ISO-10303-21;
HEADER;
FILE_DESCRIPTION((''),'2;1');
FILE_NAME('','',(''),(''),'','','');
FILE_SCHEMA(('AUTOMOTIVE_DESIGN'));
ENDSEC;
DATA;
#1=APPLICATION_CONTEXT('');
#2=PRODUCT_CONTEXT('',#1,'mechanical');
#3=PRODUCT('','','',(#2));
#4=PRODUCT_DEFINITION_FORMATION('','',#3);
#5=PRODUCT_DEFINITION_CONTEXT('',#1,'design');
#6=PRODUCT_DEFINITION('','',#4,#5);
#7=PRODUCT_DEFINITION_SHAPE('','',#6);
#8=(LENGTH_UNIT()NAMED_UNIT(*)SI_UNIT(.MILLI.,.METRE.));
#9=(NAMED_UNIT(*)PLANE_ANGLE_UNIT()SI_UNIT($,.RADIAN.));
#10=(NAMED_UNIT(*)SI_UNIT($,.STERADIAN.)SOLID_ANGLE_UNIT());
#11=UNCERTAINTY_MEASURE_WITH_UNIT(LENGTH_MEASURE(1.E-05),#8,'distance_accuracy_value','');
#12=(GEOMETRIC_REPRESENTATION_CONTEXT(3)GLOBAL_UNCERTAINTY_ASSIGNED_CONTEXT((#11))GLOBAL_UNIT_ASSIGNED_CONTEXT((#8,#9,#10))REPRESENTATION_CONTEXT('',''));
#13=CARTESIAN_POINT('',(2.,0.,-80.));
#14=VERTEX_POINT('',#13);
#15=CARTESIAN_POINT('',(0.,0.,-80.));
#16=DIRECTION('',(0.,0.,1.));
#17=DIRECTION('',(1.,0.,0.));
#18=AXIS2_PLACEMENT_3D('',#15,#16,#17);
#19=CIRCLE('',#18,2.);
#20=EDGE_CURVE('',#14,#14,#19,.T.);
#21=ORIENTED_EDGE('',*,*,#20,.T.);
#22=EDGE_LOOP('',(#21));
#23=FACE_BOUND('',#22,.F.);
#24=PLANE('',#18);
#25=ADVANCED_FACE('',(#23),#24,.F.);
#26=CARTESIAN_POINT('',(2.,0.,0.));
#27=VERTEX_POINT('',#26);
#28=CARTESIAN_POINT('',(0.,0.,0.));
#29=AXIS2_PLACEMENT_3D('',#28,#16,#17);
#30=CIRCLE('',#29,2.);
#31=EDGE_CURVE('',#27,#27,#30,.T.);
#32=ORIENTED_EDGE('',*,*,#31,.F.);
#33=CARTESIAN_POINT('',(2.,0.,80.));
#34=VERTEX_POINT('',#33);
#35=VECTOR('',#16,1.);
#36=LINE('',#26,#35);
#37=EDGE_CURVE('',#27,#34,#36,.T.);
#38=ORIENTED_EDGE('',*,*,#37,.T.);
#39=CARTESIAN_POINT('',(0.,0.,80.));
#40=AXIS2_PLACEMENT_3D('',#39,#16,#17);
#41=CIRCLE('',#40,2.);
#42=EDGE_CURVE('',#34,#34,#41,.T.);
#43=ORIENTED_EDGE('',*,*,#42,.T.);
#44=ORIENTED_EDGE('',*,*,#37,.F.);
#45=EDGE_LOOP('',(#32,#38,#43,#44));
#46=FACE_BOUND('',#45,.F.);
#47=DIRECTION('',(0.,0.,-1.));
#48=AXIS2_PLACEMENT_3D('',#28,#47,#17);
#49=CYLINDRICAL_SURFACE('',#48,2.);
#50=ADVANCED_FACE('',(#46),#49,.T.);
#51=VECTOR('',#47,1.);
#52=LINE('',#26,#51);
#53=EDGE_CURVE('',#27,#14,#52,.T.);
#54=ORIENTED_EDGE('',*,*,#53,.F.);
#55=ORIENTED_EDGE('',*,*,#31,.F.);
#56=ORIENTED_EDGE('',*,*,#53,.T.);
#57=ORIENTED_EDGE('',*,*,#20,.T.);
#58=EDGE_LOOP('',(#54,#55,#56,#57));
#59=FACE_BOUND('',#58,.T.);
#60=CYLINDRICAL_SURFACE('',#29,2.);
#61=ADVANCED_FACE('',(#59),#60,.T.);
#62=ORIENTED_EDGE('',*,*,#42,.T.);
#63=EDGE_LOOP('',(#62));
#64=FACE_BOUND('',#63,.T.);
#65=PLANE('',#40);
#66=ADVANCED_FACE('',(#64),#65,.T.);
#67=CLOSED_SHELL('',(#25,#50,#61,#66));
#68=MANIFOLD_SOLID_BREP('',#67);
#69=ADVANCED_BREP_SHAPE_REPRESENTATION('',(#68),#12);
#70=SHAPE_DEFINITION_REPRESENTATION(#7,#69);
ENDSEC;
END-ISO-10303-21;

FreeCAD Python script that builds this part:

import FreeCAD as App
import Part
import Sketcher
Q = App.Units.Quantity

doc = App.newDocument("Part")
params = doc.addObject("Spreadsheet::Sheet", "Params")
for row, (alias, value) in enumerate([
    ("sketch1_diameter", "4 mm"),
    ("pad1_length", "160 mm"),
], start=1):
    params.set(f"A{row}", alias)
    params.set(f"B{row}", "=" + value)
    params.setAlias(f"B{row}", alias)

body = doc.addObject("PartDesign::Body", "Body")

# Sketch on XY plane
sketch1 = doc.addObject("Sketcher::SketchObject", "Sketch")
body.addObject(sketch1)
sketch1.AttachmentSupport = (doc.XY_Plane, [""])
sketch1.MapMode = "FlatFace"
sketch1.addGeometry(Part.Circle(App.Vector(0, 0, 0), App.Vector(0, 0, 1), 2), False)
sketch1.addConstraint(Sketcher.Constraint("Coincident", 0, 3, -1, 1))
sketch1.addConstraint(Sketcher.Constraint("Diameter", 0, Q("4 mm")))
sketch1.setExpression("Constraints[1]", "Params.sketch1_diameter")
pad1 = doc.addObject("PartDesign::Pad", "Pad")
body.addObject(pad1)
pad1.Profile = sketch1
pad1.setExpression("Length", "Params.pad1_length")
pad1.Midplane = True

doc.recompute()
